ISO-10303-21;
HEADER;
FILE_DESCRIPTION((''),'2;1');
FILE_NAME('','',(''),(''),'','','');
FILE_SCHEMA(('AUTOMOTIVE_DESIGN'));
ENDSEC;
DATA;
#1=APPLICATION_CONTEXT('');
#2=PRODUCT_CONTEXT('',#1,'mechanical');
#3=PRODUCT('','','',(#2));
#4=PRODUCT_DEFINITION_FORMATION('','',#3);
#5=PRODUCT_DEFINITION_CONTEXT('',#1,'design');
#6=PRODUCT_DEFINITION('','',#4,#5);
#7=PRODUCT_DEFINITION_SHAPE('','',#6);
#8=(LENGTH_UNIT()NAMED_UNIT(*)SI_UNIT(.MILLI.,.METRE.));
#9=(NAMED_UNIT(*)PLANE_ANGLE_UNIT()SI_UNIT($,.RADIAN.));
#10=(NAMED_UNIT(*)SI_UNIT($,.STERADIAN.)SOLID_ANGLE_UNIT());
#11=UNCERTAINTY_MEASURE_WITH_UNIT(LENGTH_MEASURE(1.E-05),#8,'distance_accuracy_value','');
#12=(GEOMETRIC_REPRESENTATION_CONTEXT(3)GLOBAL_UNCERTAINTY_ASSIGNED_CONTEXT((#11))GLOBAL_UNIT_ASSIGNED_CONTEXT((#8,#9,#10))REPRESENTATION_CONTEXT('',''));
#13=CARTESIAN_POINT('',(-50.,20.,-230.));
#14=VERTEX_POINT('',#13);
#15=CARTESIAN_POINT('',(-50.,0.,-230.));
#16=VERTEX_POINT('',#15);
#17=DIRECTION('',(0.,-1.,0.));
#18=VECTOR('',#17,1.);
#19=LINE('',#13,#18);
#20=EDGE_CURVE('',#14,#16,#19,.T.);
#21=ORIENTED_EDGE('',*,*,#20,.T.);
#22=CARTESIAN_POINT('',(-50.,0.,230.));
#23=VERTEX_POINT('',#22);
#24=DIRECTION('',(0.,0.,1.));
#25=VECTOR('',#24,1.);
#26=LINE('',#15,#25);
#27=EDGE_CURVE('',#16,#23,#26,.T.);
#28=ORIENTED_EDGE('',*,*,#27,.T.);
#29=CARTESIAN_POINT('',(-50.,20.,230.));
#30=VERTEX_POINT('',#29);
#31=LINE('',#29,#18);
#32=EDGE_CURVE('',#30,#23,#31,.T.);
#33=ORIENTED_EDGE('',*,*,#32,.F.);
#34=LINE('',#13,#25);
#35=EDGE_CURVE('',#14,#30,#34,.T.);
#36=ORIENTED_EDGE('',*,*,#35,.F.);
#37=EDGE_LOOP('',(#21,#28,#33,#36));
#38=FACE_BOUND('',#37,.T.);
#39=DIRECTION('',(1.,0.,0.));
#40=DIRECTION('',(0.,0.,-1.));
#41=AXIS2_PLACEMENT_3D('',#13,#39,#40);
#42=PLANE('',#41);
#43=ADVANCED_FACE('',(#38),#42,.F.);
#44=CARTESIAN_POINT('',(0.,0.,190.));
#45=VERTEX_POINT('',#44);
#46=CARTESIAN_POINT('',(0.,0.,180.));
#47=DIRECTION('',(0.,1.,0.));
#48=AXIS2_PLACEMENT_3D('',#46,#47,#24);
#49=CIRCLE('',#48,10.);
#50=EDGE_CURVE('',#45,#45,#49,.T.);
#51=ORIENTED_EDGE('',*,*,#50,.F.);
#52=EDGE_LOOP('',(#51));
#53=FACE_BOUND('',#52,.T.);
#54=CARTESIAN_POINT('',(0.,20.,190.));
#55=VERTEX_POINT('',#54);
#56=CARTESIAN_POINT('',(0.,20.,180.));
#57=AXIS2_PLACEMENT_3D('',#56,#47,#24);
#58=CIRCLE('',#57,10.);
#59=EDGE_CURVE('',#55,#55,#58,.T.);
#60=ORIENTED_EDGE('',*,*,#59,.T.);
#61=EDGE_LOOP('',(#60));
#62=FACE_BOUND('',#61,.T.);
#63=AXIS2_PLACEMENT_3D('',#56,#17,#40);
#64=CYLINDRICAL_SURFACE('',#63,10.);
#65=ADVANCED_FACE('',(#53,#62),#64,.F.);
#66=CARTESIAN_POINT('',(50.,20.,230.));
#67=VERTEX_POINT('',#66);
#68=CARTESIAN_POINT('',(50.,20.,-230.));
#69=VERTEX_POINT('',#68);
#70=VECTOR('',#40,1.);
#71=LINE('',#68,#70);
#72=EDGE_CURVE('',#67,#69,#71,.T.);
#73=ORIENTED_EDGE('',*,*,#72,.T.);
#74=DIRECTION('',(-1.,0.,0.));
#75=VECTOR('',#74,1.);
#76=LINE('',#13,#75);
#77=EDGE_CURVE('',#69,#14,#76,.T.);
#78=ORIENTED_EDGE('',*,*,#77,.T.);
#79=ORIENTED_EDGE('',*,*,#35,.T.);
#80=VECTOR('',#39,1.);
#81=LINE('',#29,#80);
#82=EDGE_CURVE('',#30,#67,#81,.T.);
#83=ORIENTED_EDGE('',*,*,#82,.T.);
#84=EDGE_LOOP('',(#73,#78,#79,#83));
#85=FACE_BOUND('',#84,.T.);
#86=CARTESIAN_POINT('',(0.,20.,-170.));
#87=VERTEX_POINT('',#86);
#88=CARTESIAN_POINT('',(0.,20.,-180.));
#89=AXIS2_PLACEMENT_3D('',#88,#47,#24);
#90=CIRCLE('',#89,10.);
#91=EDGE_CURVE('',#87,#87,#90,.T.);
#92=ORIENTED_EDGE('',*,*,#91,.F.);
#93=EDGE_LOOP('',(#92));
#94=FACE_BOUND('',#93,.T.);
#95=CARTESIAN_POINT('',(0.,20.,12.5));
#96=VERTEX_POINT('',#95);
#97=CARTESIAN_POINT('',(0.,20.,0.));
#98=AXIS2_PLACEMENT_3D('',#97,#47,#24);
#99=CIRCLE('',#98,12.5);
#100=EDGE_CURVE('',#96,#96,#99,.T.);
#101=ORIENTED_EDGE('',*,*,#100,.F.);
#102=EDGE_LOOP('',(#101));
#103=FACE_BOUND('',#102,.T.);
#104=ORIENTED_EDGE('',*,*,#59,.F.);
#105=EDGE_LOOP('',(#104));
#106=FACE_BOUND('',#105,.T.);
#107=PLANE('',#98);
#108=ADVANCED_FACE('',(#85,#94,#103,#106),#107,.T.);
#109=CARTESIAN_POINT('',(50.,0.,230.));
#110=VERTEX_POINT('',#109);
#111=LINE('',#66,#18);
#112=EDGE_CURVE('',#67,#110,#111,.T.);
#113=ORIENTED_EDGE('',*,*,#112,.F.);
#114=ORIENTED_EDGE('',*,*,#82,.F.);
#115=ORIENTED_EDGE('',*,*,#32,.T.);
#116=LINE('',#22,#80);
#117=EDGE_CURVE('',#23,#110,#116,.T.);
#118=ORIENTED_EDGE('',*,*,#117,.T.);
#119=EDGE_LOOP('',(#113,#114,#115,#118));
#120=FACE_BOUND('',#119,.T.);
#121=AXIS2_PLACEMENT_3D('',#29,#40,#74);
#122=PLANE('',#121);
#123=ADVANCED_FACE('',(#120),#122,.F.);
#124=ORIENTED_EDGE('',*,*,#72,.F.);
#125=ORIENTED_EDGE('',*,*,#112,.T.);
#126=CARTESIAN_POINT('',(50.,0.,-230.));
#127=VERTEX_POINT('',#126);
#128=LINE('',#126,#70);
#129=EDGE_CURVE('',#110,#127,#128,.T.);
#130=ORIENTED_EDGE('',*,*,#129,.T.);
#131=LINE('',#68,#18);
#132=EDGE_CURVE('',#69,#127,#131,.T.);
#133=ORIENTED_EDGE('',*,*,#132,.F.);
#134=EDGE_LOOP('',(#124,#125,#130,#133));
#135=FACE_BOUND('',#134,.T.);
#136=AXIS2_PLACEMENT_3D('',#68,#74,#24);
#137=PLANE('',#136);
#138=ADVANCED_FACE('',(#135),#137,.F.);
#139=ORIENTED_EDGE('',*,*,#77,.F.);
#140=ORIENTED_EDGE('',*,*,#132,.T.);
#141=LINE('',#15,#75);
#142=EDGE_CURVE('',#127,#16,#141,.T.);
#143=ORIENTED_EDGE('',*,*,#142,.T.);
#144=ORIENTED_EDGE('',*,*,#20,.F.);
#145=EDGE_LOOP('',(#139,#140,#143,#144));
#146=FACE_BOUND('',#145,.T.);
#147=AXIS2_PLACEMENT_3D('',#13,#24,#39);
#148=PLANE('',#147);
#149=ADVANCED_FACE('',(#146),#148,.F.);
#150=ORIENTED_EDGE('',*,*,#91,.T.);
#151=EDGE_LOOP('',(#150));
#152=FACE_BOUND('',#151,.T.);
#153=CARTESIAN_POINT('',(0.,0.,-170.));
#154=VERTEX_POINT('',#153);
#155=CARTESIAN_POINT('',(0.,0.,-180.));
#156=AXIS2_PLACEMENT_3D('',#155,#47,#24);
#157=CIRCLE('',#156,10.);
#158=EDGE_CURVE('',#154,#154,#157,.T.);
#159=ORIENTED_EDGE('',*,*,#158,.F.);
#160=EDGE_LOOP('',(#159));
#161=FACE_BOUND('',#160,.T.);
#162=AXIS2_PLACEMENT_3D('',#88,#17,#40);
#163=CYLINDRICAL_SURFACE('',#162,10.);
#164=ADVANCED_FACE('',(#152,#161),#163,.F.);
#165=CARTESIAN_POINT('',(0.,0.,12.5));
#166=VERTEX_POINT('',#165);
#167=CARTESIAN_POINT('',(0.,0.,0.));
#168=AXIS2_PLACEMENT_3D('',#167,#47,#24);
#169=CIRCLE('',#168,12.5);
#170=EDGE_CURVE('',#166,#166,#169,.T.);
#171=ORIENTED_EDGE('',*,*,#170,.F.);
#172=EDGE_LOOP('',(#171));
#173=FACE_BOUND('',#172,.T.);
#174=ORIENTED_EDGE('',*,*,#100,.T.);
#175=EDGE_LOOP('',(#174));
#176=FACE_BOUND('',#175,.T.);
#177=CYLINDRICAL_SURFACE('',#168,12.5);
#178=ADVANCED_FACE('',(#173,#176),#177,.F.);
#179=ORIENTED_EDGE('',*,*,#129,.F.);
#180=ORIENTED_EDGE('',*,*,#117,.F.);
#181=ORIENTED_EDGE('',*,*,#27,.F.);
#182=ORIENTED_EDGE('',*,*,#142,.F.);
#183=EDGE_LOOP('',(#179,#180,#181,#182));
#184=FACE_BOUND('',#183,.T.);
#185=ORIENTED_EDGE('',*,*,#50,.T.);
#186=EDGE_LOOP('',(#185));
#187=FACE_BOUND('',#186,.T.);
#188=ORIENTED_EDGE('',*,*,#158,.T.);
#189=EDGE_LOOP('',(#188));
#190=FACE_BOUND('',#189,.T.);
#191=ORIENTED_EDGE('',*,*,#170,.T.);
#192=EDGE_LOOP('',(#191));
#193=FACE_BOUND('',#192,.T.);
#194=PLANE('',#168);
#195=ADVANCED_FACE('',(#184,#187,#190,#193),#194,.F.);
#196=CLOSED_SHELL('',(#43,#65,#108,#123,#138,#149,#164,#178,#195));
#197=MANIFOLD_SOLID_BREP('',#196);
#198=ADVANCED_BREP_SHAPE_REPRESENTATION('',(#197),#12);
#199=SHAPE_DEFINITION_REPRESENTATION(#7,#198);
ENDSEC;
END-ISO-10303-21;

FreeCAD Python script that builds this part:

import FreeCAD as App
import Part
import Sketcher
from FreeCAD import Vector
Q = App.Units.Quantity

doc = App.newDocument("Part")
body = doc.addObject("PartDesign::Body", "Body")

# Sketch on XZ plane
sketch1 = body.newObject("Sketcher::SketchObject", "Sketch")
sketch1.AttachmentSupport = (doc.getObject("XZ_Plane"), [""])
sketch1.MapMode = "FlatFace"
sketch1.addGeometry([
    Part.LineSegment(Vector(-50, -230, 0), Vector(-50, 230, 0)),  # 0
    Part.LineSegment(Vector(-50, 230, 0), Vector(50, 230, 0)),  # 1
    Part.LineSegment(Vector(50, 230, 0), Vector(50, -230, 0)),  # 2
    Part.LineSegment(Vector(50, -230, 0), Vector(-50, -230, 0)),  # 3
    Part.Circle(Vector(0, 180, 0), Vector(0, 0, 1), 10),  # 4
    Part.Circle(Vector(0, -180, 0), Vector(0, 0, 1), 10),  # 5
], False)
sketch1.addConstraint([
    Sketcher.Constraint("Coincident", 0, 2, 1, 1),
    Sketcher.Constraint("Coincident", 1, 2, 2, 1),
    Sketcher.Constraint("Coincident", 2, 2, 3, 1),
    Sketcher.Constraint("Coincident", 3, 2, 0, 1),
    Sketcher.Constraint("Vertical", 0),
    Sketcher.Constraint("Horizontal", 1),
    Sketcher.Constraint("Vertical", 2),
    Sketcher.Constraint("Horizontal", 3),
    Sketcher.Constraint("Equal", 4, 5),
    Sketcher.Constraint("Symmetric", 4, 3, 5, 3, -1, 1),
    Sketcher.Constraint("Symmetric", 0, 2, 2, 2, -1, 1),
    Sketcher.Constraint("PointOnObject", 4, 3, -2),
    Sketcher.Constraint("Diameter", 4, Q("20 mm")),
    Sketcher.Constraint("DistanceX", 1, 1, 1, 2, Q("100 mm")),
    Sketcher.Constraint("DistanceY", 0, 1, 0, 2, Q("460 mm")),
    Sketcher.Constraint("DistanceY", -1, 1, 4, 3, Q("180 mm")),
])
pad1 = body.newObject("PartDesign::Pad", "Pad")
pad1.Profile = sketch1
pad1.Length = 20
pad1.Reversed = True

# Sketch on XZ plane
sketch2 = body.newObject("Sketcher::SketchObject", "Sketch001")
sketch2.AttachmentSupport = (doc.getObject("XZ_Plane"), [""])
sketch2.MapMode = "FlatFace"
sketch2.AttachmentOffset = App.Placement(Vector(0, 0, -20), App.Rotation())
sketch2.addGeometry(Part.Circle(Vector(0, 0, 0), Vector(0, 0, 1), 12.5), False)
sketch2.addConstraint([
    Sketcher.Constraint("Coincident", 0, 3, -1, 1),
    Sketcher.Constraint("Diameter", 0, Q("25 mm")),
])
pocket1 = body.newObject("PartDesign::Pocket", "Pocket")
pocket1.Profile = sketch2
pocket1.Type = "ThroughAll"
pocket1.Reversed = True

doc.recompute()
